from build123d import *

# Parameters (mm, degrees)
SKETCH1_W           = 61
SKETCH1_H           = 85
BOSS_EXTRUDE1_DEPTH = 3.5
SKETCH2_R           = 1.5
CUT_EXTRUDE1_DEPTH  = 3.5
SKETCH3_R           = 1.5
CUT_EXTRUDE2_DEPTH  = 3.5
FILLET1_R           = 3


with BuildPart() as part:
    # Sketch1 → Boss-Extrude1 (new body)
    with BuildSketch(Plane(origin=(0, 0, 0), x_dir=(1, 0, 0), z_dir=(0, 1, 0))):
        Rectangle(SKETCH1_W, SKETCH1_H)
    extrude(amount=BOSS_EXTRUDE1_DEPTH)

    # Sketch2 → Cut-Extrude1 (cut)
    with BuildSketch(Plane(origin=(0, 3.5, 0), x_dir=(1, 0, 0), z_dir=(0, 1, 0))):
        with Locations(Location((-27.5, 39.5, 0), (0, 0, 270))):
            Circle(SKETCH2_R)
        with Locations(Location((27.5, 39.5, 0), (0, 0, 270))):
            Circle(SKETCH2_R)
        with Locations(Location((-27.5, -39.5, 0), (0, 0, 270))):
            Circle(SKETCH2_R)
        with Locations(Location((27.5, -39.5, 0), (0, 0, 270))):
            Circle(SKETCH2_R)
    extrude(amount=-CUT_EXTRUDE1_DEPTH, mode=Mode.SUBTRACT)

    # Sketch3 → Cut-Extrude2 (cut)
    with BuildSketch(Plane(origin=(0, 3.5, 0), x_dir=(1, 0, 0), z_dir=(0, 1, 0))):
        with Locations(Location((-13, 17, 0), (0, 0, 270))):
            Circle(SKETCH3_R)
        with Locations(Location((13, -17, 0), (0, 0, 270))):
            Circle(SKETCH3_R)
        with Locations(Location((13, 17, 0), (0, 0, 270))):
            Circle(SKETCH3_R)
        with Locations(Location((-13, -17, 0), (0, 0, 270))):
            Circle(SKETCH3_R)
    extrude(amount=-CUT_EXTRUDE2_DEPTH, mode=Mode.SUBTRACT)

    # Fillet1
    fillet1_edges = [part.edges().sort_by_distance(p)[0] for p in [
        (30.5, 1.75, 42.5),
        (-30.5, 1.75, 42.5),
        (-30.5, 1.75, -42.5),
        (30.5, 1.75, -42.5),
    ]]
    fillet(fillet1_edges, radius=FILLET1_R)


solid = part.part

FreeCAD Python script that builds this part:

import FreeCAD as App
import Part
import Sketcher
Q = App.Units.Quantity


def edges_at(feature, points):
    """Names of the edges that pass closest to the given points."""
    edges = feature.Shape.Edges
    near = lambda p: min(range(len(edges)), key=lambda i: edges[i].distToShape(Part.Vertex(*p))[0])
    return sorted({f"Edge{near(p) + 1}" for p in points})


def add_polygon(sketch, points):
    """Adds a closed chain of lines whose ends are joined by coincident constraints."""
    first, n = sketch.GeometryCount, len(points)
    for a, b in zip(points, points[1:] + points[:1]):
        sketch.addGeometry(Part.LineSegment(App.Vector(*a, 0), App.Vector(*b, 0)), False)
    for i in range(n):
        sketch.addConstraint(Sketcher.Constraint("Coincident", first + i, 2, first + (i + 1) % n, 1))

doc = App.newDocument("Part")
body = doc.addObject("PartDesign::Body", "Body")

sketch1 = body.newObject("Sketcher::SketchObject", "Sketch")
sketch1.AttachmentSupport = (doc.getObject("XZ_Plane"), [""])
sketch1.MapMode = "FlatFace"
add_polygon(sketch1, [(-30, -42), (-30, 42), (30, 42), (30, -42)])
sketch1.addConstraint(Sketcher.Constraint("Vertical", 0))
sketch1.addConstraint(Sketcher.Constraint("Horizontal", 1))
sketch1.addConstraint(Sketcher.Constraint("Vertical", 2))
sketch1.addConstraint(Sketcher.Constraint("Horizontal", 3))
sketch1.addConstraint(Sketcher.Constraint("Symmetric", 0, 2, 2, 2, -1, 1))
sketch1.addConstraint(Sketcher.Constraint("DistanceX", 1, 1, 1, 2, Q("61 mm")))
sketch1.addConstraint(Sketcher.Constraint("DistanceY", 0, 1, 0, 2, Q("85 mm")))
pad1 = body.newObject("PartDesign::Pad", "Pad")
pad1.Profile = sketch1
pad1.Length = 3.5
pad1.Reversed = True

sketch2 = body.newObject("Sketcher::SketchObject", "Sketch001")
sketch2.AttachmentSupport = (doc.getObject("XZ_Plane"), [""])
sketch2.MapMode = "FlatFace"
sketch2.AttachmentOffset = App.Placement(App.Vector(0, 0, -3.5), App.Rotation())
sketch2.addGeometry(Part.Circle(App.Vector(-27.5, -39.5, 0), App.Vector(0, 0, 1), 1.5), False)
sketch2.addGeometry(Part.Circle(App.Vector(27.5, -39.5, 0), App.Vector(0, 0, 1), 1.5), False)
sketch2.addGeometry(Part.Circle(App.Vector(-27.5, 39.5, 0), App.Vector(0, 0, 1), 1.5), False)
sketch2.addGeometry(Part.Circle(App.Vector(27.5, 39.5, 0), App.Vector(0, 0, 1), 1.5), False)
sketch2.addConstraint(Sketcher.Constraint("Equal", 0, 1))
sketch2.addConstraint(Sketcher.Constraint("Equal", 1, 2))
sketch2.addConstraint(Sketcher.Constraint("Equal", 2, 3))
sketch2.addConstraint(Sketcher.Constraint("Symmetric", 1, 3, 2, 3, -1, 1))
sketch2.addConstraint(Sketcher.Constraint("Symmetric", 0, 3, 3, 3, -1, 1))
sketch2.addConstraint(Sketcher.Constraint("Symmetric", 0, 3, 1, 3, -2))
sketch2.addConstraint(Sketcher.Constraint("Diameter", 0, Q("3 mm")))
sketch2.addConstraint(Sketcher.Constraint("DistanceX", 0, 3, 1, 3, Q("55 mm")))
sketch2.addConstraint(Sketcher.Constraint("DistanceY", 0, 3, 2, 3, Q("79 mm")))
pocket1 = body.newObject("PartDesign::Pocket", "Pocket")
pocket1.Profile = sketch2
pocket1.Length = 3.5
pocket1.Reversed = True

sketch3 = body.newObject("Sketcher::SketchObject", "Sketch002")
sketch3.AttachmentSupport = (doc.getObject("XZ_Plane"), [""])
sketch3.MapMode = "FlatFace"
sketch3.AttachmentOffset = App.Placement(App.Vector(0, 0, -3.5), App.Rotation())
sketch3.addGeometry(Part.Circle(App.Vector(-13, -17, 0), App.Vector(0, 0, 1), 1.5), False)
sketch3.addGeometry(Part.Circle(App.Vector(13, 17, 0), App.Vector(0, 0, 1), 1.5), False)
sketch3.addGeometry(Part.Circle(App.Vector(13, -17, 0), App.Vector(0, 0, 1), 1.5), False)
sketch3.addGeometry(Part.Circle(App.Vector(-13, 17, 0), App.Vector(0, 0, 1), 1.5), False)
sketch3.addConstraint(Sketcher.Constraint("Equal", 0, 1))
sketch3.addConstraint(Sketcher.Constraint("Equal", 1, 2))
sketch3.addConstraint(Sketcher.Constraint("Equal", 2, 3))
sketch3.addConstraint(Sketcher.Constraint("Symmetric", 0, 3, 1, 3, -1, 1))
sketch3.addConstraint(Sketcher.Constraint("Symmetric", 2, 3, 3, 3, -1, 1))
sketch3.addConstraint(Sketcher.Constraint("Symmetric", 0, 3, 2, 3, -2))
sketch3.addConstraint(Sketcher.Constraint("Diameter", 0, Q("3 mm")))
sketch3.addConstraint(Sketcher.Constraint("DistanceX", 0, 3, -1, 1, Q("13 mm")))
sketch3.addConstraint(Sketcher.Constraint("DistanceY", 0, 3, -1, 1, Q("17 mm")))
pocket2 = body.newObject("PartDesign::Pocket", "Pocket001")
pocket2.Profile = sketch3
pocket2.Length = 3.5
pocket2.Reversed = True
doc.recompute()

fillet = body.newObject("PartDesign::Fillet", "Fillet")
fillet.Base = (pocket2, edges_at(pocket2, [
    (30.5, 1.75, 42.5),
    (-30.5, 1.75, 42.5),
    (-30.5, 1.75, -42.5),
    (30.5, 1.75, -42.5),
]))
fillet.Radius = 3

doc.recompute()
